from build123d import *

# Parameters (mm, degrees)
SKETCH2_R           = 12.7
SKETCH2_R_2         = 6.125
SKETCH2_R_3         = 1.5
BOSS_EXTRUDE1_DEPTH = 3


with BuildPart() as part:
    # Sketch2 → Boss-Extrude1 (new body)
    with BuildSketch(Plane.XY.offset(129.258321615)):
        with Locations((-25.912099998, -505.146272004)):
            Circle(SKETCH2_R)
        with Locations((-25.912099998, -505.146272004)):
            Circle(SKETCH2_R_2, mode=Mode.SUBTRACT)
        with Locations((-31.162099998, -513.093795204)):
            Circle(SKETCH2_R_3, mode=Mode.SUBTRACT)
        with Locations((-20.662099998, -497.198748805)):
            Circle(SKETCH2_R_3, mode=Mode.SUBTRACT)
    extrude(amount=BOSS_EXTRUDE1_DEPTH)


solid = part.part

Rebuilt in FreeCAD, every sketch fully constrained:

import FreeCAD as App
import Part
import Sketcher
from FreeCAD import Vector
Q = App.Units.Quantity

doc = App.newDocument("Part")
body = doc.addObject("PartDesign::Body", "Body")

sketch1 = body.newObject("Sketcher::SketchObject", "Sketch")
sketch1.AttachmentSupport = (doc.getObject("XY_Plane"), [""])
sketch1.MapMode = "FlatFace"
sketch1.AttachmentOffset = App.Placement(Vector(0, 0, 129.258322), App.Rotation())
sketch1.addGeometry([
    Part.Circle(Vector(-25.9, -505.1, 0), Vector(0, 0, 1), 12.7),
    Part.Circle(Vector(-31.2, -513.1, 0), Vector(0, 0, 1), 1.5),
    Part.Circle(Vector(-25.9, -505.1, 0), Vector(0, 0, 1), 6.1),
    Part.Circle(Vector(-20.7, -497.2, 0), Vector(0, 0, 1), 1.5),
], False)
sketch1.addConstraint([
    Sketcher.Constraint("Coincident", 2, 3, 0, 3),
    Sketcher.Constraint("Equal", 1, 3),
    Sketcher.Constraint("Diameter", 1, Q("3 mm")),
    Sketcher.Constraint("Diameter", 0, Q("25.4 mm")),
    Sketcher.Constraint("Diameter", 2, Q("12.25 mm")),
    Sketcher.Constraint("DistanceX", 1, 3, 3, 3, Q("10.5 mm")),
    Sketcher.Constraint("DistanceX", 1, 3, 0, 3, Q("5.25 mm")),
    Sketcher.Constraint("DistanceX", 0, 3, -1, 1, Q("25.9121 mm")),
    Sketcher.Constraint("DistanceY", 3, 3, -1, 1, Q("497.198749 mm")),
    Sketcher.Constraint("DistanceY", 0, 3, -1, 1, Q("505.146272 mm")),
    Sketcher.Constraint("DistanceY", 1, 3, -1, 1, Q("513.093795 mm")),
])
pad1 = body.newObject("PartDesign::Pad", "Pad")
pad1.Profile = sketch1
pad1.Length = 3

doc.recompute()
